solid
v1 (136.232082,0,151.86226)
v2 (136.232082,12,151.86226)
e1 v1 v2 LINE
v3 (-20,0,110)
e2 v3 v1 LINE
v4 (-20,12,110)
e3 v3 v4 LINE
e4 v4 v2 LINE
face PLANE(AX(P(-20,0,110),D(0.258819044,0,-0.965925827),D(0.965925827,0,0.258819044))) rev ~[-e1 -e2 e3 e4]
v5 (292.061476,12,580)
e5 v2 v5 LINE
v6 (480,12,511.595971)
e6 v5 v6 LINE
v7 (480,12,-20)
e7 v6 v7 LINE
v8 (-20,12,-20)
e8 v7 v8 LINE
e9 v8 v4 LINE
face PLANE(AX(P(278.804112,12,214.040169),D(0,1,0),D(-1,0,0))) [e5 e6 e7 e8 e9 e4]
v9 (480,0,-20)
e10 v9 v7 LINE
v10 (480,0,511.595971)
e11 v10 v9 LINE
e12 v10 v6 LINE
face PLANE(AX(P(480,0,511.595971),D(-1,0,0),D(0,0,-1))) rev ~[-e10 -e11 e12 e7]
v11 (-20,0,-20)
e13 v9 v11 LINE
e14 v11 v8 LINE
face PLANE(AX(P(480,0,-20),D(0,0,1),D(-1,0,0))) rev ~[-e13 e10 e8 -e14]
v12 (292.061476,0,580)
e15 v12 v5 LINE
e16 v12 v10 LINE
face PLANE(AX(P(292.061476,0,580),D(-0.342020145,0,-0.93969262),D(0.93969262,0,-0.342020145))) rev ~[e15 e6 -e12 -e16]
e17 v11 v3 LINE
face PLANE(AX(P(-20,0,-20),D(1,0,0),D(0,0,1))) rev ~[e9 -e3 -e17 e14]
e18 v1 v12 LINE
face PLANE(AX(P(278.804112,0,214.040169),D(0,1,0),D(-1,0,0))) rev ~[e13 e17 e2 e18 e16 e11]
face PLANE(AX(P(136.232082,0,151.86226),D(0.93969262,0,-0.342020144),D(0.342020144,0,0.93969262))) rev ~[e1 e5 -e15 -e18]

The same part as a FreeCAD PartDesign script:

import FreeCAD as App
import Part
import Sketcher
from FreeCAD import Vector
Q = App.Units.Quantity


def add_polygon(sketch, points):
    """Adds a closed chain of lines whose ends are joined by coincident constraints."""
    first, n = sketch.GeometryCount, len(points)
    for a, b in zip(points, points[1:] + points[:1]):
        sketch.addGeometry(Part.LineSegment(App.Vector(*a, 0), App.Vector(*b, 0)), False)
    for i in range(n):
        sketch.addConstraint(Sketcher.Constraint("Coincident", first + i, 2, first + (i + 1) % n, 1))

doc = App.newDocument("Part")
body = doc.addObject("PartDesign::Body", "Body")

sketch1 = body.newObject("Sketcher::SketchObject", "Sketch")
sketch1.AttachmentSupport = (doc.getObject("XZ_Plane"), [""])
sketch1.MapMode = "FlatFace"
add_polygon(sketch1, [(-20, 110), (-20, -20), (480, -20), (480, 511.595971), (292.061476, 580), (136.232082, 151.86226)])
sketch1.addConstraint([
    Sketcher.Constraint("Vertical", 0),
    Sketcher.Constraint("Horizontal", 1),
    Sketcher.Constraint("Vertical", 2),
    Sketcher.Constraint("Perpendicular", 3, 4),
    Sketcher.Constraint("DistanceX", 1, 1, 1, 2, 500.0),
    Sketcher.Constraint("DistanceY", 0, 2, 0, 1, 130.0),
    Sketcher.Constraint("Angle", 3, Q("160 deg")),
    Sketcher.Constraint("Angle", 5, Q("-165 deg")),
    Sketcher.Constraint("Distance", 3, 200.0),
    Sketcher.Constraint("DistanceX", 0, 2, -1, 1, 20.0),
    Sketcher.Constraint("DistanceY", 0, 2, -1, 1, 20.0),
    Sketcher.Constraint("DistanceY", -1, 1, 3, 2, 580.0),
])
pad1 = body.newObject("PartDesign::Pad", "Pad")
pad1.Profile = sketch1
pad1.Length = 12
pad1.Reversed = True

sketch2 = body.newObject("Sketcher::SketchObject", "Sketch001")
sketch2.AttachmentSupport = (doc.getObject("XZ_Plane"), [""])
sketch2.MapMode = "FlatFace"
add_polygon(sketch2, [(465, -5), (465, 501.092858), (301.026563, 560.774309), (147.656805, 139.394363), (-5, 98.490095), (-5, -5)])
sketch2.addConstraint([
    Sketcher.Constraint("Vertical", 0),
    Sketcher.Constraint("Vertical", 4),
    Sketcher.Constraint("Horizontal", 5),
    Sketcher.Constraint("Perpendicular", 1, 2),
    Sketcher.Constraint("DistanceX", 5, 1, 5, 2, 470.0),
    Sketcher.Constraint("Angle", 1, Q("160 deg")),
    Sketcher.Constraint("Angle", 3, Q("-165 deg")),
    Sketcher.Constraint("DistanceX", -1, 1, 0, 2, 465.0),
    Sketcher.Constraint("DistanceY", 4, 2, -1, 1, 5.0),
    Sketcher.Constraint("DistanceY", 0, 1, 0, 2, 506.092858),
    Sketcher.Constraint("DistanceY", 4, 2, 4, 1, 103.490095),
    Sketcher.Constraint("DistanceY", -1, 1, 1, 2, 560.774309),
])
pocket1 = body.newObject("PartDesign::Pocket", "Pocket")
pocket1.Profile = sketch2
pocket1.Length = 1
pocket1.Reversed = True

doc.recompute()
